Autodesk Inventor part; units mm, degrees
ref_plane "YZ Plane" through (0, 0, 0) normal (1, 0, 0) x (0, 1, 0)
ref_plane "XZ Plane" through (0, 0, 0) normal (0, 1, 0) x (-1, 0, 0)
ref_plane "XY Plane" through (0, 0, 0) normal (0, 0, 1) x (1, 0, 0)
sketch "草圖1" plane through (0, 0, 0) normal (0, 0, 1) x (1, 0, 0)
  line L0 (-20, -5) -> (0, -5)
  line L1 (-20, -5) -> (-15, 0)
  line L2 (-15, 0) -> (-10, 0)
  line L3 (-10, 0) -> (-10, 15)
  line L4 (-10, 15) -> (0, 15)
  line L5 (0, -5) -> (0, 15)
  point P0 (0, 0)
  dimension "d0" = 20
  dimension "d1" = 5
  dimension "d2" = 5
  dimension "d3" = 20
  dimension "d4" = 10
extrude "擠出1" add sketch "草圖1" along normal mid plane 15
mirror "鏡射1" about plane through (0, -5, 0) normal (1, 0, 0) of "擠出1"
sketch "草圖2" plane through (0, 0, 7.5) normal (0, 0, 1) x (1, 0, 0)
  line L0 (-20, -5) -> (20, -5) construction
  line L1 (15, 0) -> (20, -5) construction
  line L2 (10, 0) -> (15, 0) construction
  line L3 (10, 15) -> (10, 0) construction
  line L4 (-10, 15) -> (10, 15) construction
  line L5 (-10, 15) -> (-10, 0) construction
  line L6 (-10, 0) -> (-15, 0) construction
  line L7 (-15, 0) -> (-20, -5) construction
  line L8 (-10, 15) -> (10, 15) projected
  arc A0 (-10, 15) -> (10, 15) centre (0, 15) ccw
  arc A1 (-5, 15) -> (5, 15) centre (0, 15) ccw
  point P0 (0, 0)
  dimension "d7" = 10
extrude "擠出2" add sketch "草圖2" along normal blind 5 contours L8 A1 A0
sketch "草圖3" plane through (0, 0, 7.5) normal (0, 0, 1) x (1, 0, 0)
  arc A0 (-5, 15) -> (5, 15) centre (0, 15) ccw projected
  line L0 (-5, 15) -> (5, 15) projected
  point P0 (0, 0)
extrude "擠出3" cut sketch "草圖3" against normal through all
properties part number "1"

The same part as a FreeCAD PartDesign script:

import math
import FreeCAD as App
import Part
import Sketcher
from FreeCAD import Vector
Q = App.Units.Quantity


def add_polygon(sketch, points):
    """Adds a closed chain of lines whose ends are joined by coincident constraints."""
    first, n = sketch.GeometryCount, len(points)
    for a, b in zip(points, points[1:] + points[:1]):
        sketch.addGeometry(Part.LineSegment(App.Vector(*a, 0), App.Vector(*b, 0)), False)
    for i in range(n):
        sketch.addConstraint(Sketcher.Constraint("Coincident", first + i, 2, first + (i + 1) % n, 1))

doc = App.newDocument("Part")
body = doc.addObject("PartDesign::Body", "Body")

# Sketch on XY plane
sketch1 = body.newObject("Sketcher::SketchObject", "Sketch")
sketch1.AttachmentSupport = (doc.getObject("XY_Plane"), [""])
sketch1.MapMode = "FlatFace"
add_polygon(sketch1, [(-15, 0), (-20, -5), (0, -5), (0, 15), (-10, 15), (-10, 0)])  # lines 0-5
sketch1.addConstraint(Sketcher.Constraint("Horizontal", 1))
sketch1.addConstraint(Sketcher.Constraint("Vertical", 2))
sketch1.addConstraint(Sketcher.Constraint("Horizontal", 3))
sketch1.addConstraint(Sketcher.Constraint("Vertical", 4))
sketch1.addConstraint(Sketcher.Constraint("Horizontal", 5))
sketch1.addConstraint(Sketcher.Constraint("PointOnObject", 1, 2, -2))
sketch1.addConstraint(Sketcher.Constraint("PointOnObject", 4, 2, -1))
sketch1.addConstraint(Sketcher.Constraint("Equal", 1, 2))
sketch1.addConstraint(Sketcher.Constraint("DistanceX", 1, 1, 1, 2, Q("20 mm")))
sketch1.addConstraint(Sketcher.Constraint("DistanceX", 3, 2, 3, 1, Q("10 mm")))
sketch1.addConstraint(Sketcher.Constraint("DistanceX", 5, 2, 5, 1, Q("5 mm")))
sketch1.addConstraint(Sketcher.Constraint("DistanceY", 0, 2, -1, 1, Q("5 mm")))
pad1 = body.newObject("PartDesign::Pad", "Pad")
pad1.Profile = sketch1
pad1.Length = 15
pad1.Midplane = True
doc.recompute()

mirrored = body.newObject("PartDesign::Mirrored", "Mirrored")
mirrored.Originals = [pad1]
mirrored.MirrorPlane = (doc.getObject("YZ_Plane"), [""])
body.Tip = mirrored

# Sketch on XY plane
sketch2 = body.newObject("Sketcher::SketchObject", "Sketch001")
sketch2.AttachmentSupport = (doc.getObject("XY_Plane"), [""])
sketch2.MapMode = "FlatFace"
sketch2.AttachmentOffset = App.Placement(Vector(0, 0, 7.5), App.Rotation())
sketch2.addGeometry(Part.LineSegment(Vector(-5, 15, 0), Vector(-10, 15, 0)), False)
sketch2.addGeometry(Part.ArcOfCircle(Part.Circle(Vector(0, 15, 0), Vector(0, 0, 1), 10), math.radians(180), math.radians(360)), False)
sketch2.addGeometry(Part.LineSegment(Vector(10, 15, 0), Vector(5, 15, 0)), False)
sketch2.addGeometry(Part.ArcOfCircle(Part.Circle(Vector(0, 15, 0), Vector(0, 0, 1), 5), math.radians(180), math.radians(360)), False)
sketch2.addConstraint(Sketcher.Constraint("Coincident", 0, 2, 1, 1))
sketch2.addConstraint(Sketcher.Constraint("Coincident", 1, 2, 2, 1))
sketch2.addConstraint(Sketcher.Constraint("Coincident", 2, 2, 3, 2))
sketch2.addConstraint(Sketcher.Constraint("Coincident", 3, 1, 0, 1))
sketch2.addConstraint(Sketcher.Constraint("Horizontal", 0))
sketch2.addConstraint(Sketcher.Constraint("Horizontal", 2))
sketch2.addConstraint(Sketcher.Constraint("Coincident", 3, 3, 1, 3))
sketch2.addConstraint(Sketcher.Constraint("Symmetric", 0, 2, 1, 2, -2))
sketch2.addConstraint(Sketcher.Constraint("Horizontal", 3, 3, 0, 2))
sketch2.addConstraint(Sketcher.Constraint("Radius", 1, Q("10 mm")))
sketch2.addConstraint(Sketcher.Constraint("Radius", 3, Q("5 mm")))
sketch2.addConstraint(Sketcher.Constraint("DistanceY", -1, 1, 1, 3, Q("15 mm")))
pad2 = body.newObject("PartDesign::Pad", "Pad001")
pad2.Profile = sketch2
pad2.Length = 5

# Sketch on XY plane
sketch3 = body.newObject("Sketcher::SketchObject", "Sketch002")
sketch3.AttachmentSupport = (doc.getObject("XY_Plane"), [""])
sketch3.MapMode = "FlatFace"
sketch3.AttachmentOffset = App.Placement(Vector(0, 0, 7.5), App.Rotation())
sketch3.addGeometry(Part.LineSegment(Vector(5, 15, 0), Vector(-5, 15, 0)), False)
sketch3.addGeometry(Part.ArcOfCircle(Part.Circle(Vector(0, 15, 0), Vector(0, 0, 1), 5), math.radians(180), math.radians(360)), False)
sketch3.addConstraint(Sketcher.Constraint("Coincident", 0, 1, 1, 2))
sketch3.addConstraint(Sketcher.Constraint("Coincident", 1, 1, 0, 2))
sketch3.addConstraint(Sketcher.Constraint("Horizontal", 0))
sketch3.addConstraint(Sketcher.Constraint("PointOnObject", 1, 3, -2))
sketch3.addConstraint(Sketcher.Constraint("Horizontal", 1, 3, 0, 1))
sketch3.addConstraint(Sketcher.Constraint("Radius", 1, Q("5 mm")))
sketch3.addConstraint(Sketcher.Constraint("DistanceY", -1, 1, 1, 3, Q("15 mm")))
pocket1 = body.newObject("PartDesign::Pocket", "Pocket")
pocket1.Profile = sketch3
pocket1.Type = "ThroughAll"

doc.recompute()
